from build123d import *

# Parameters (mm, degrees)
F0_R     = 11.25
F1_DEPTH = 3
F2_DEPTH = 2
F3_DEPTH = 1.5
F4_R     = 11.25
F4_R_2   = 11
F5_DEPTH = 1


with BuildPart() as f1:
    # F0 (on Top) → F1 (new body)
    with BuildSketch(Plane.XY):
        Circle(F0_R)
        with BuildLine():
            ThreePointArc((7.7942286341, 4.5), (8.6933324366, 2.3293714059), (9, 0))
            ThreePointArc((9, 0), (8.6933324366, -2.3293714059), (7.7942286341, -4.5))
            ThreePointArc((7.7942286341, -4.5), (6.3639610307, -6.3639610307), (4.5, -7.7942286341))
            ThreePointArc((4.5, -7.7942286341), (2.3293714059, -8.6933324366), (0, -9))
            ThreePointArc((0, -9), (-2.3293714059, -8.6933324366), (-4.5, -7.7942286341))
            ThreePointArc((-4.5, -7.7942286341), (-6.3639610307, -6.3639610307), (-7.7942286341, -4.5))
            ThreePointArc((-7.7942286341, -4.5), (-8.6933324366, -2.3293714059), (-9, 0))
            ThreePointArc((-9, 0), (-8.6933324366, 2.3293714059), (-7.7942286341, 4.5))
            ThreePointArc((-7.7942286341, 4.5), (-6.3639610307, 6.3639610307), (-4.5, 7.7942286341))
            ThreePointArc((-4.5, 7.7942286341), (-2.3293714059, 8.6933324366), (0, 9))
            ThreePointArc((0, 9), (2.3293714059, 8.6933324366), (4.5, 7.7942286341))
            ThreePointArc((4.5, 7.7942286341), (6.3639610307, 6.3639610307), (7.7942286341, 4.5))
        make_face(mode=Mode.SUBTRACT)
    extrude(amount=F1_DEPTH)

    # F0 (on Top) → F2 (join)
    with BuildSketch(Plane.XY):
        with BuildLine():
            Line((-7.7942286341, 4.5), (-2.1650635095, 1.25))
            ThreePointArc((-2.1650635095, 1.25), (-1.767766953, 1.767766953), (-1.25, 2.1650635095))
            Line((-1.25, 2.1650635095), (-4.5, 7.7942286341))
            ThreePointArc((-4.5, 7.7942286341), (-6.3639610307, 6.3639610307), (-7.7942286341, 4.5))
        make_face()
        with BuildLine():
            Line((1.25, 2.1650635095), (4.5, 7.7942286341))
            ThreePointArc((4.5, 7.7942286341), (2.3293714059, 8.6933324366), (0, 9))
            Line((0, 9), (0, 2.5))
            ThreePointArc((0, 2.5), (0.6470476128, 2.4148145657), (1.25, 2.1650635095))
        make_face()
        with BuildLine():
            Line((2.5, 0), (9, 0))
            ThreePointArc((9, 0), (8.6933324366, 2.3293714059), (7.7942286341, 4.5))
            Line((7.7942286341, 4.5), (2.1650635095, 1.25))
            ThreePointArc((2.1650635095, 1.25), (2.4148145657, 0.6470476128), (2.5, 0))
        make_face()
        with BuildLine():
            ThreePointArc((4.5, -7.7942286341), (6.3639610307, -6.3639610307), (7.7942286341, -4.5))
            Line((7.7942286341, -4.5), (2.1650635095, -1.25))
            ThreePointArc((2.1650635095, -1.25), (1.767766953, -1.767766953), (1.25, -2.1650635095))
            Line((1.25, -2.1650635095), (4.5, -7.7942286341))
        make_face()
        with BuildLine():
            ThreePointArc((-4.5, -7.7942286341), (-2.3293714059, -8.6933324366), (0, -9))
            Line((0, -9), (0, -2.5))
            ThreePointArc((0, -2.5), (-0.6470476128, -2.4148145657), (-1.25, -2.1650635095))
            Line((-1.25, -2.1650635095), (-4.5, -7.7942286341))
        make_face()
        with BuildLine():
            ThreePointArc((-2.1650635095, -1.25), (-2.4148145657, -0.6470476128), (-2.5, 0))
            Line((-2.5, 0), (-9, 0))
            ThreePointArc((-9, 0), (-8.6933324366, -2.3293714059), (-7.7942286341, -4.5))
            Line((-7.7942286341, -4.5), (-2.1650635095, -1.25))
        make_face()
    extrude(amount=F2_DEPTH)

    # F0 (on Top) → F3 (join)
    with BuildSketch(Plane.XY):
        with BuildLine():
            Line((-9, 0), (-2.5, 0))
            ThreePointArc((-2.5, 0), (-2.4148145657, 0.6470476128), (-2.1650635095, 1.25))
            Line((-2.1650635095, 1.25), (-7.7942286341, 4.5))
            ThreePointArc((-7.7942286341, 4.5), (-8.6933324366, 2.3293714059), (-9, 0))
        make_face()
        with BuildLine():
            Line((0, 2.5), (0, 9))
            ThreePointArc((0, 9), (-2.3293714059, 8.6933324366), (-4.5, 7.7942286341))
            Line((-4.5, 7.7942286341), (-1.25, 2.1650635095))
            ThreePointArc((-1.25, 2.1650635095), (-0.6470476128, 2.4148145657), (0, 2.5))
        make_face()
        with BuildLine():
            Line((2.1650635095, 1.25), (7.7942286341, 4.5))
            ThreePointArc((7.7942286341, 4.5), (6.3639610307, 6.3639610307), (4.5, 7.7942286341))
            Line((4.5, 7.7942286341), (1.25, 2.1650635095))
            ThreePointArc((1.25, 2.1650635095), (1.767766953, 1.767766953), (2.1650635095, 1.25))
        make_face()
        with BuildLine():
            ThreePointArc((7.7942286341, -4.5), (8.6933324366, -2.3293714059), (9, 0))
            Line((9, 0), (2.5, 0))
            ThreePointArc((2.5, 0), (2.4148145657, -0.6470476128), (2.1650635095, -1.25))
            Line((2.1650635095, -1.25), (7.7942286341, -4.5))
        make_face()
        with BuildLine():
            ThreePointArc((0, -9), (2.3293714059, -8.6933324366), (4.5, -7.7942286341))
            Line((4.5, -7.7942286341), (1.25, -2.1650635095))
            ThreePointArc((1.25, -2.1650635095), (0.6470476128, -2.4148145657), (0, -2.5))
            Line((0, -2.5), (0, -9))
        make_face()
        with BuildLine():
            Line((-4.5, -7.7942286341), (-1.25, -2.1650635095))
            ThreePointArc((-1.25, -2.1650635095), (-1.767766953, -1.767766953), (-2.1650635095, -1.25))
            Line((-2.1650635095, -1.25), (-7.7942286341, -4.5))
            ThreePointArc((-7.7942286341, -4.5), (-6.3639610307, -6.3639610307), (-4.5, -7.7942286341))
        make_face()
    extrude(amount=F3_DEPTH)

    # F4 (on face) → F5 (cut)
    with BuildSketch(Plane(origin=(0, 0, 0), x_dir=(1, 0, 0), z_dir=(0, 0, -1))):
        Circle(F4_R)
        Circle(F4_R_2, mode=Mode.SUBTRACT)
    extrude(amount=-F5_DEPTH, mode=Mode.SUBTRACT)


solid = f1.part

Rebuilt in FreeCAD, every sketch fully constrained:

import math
import FreeCAD as App
import Part
import Sketcher

V = App.Vector
Q = App.Units.Quantity

doc = App.newDocument("Part")
body = doc.addObject("PartDesign::Body", "Body")

# Sketch on XY plane
sketch1 = body.newObject("Sketcher::SketchObject", "Sketch")
sketch1.AttachmentSupport = (doc.getObject("XY_Plane"), [""])
sketch1.MapMode = "FlatFace"
sketch1.addGeometry([
    Part.Circle(V(0, 0, 0), V(0, 0, 1), 11.2),  # 0
    Part.ArcOfCircle(Part.Circle(V(0, 0, 0), V(0, 0, 1), 9), math.radians(30), math.radians(60)),  # 1
    Part.ArcOfCircle(Part.Circle(V(0, 0, 0), V(0, 0, 1), 9), math.radians(0), math.radians(30)),  # 2
    Part.ArcOfCircle(Part.Circle(V(0, 0, 0), V(0, 0, 1), 9), math.radians(-30), math.radians(0)),  # 3
    Part.ArcOfCircle(Part.Circle(V(0, 0, 0), V(0, 0, 1), 9), math.radians(-60), math.radians(-30)),  # 4
    Part.ArcOfCircle(Part.Circle(V(0, 0, 0), V(0, 0, 1), 9), math.radians(-90), math.radians(-60)),  # 5
    Part.ArcOfCircle(Part.Circle(V(0, 0, 0), V(0, 0, 1), 9), math.radians(-120), math.radians(-90)),  # 6
    Part.ArcOfCircle(Part.Circle(V(0, 0, 0), V(0, 0, 1), 9), math.radians(-150), math.radians(-120)),  # 7
    Part.ArcOfCircle(Part.Circle(V(0, 0, 0), V(0, 0, 1), 9), math.radians(180), math.radians(210)),  # 8
    Part.ArcOfCircle(Part.Circle(V(0, 0, 0), V(0, 0, 1), 9), math.radians(150), math.radians(180)),  # 9
    Part.ArcOfCircle(Part.Circle(V(0, 0, 0), V(0, 0, 1), 9), math.radians(120), math.radians(150)),  # 10
    Part.ArcOfCircle(Part.Circle(V(0, 0, 0), V(0, 0, 1), 9), math.radians(90), math.radians(120)),  # 11
    Part.ArcOfCircle(Part.Circle(V(0, 0, 0), V(0, 0, 1), 9), math.radians(60), math.radians(90)),  # 12
], False)
sketch1.addConstraint([
    Sketcher.Constraint("Tangent", 1, 1, 2, 2),
    Sketcher.Constraint("Tangent", 2, 1, 3, 2),
    Sketcher.Constraint("Tangent", 3, 1, 4, 2),
    Sketcher.Constraint("Tangent", 4, 1, 5, 2),
    Sketcher.Constraint("Tangent", 5, 1, 6, 2),
    Sketcher.Constraint("Tangent", 6, 1, 7, 2),
    Sketcher.Constraint("Tangent", 7, 1, 8, 2),
    Sketcher.Constraint("Tangent", 8, 1, 9, 2),
    Sketcher.Constraint("Tangent", 9, 1, 10, 2),
    Sketcher.Constraint("Tangent", 10, 1, 11, 2),
    Sketcher.Constraint("Tangent", 11, 1, 12, 2),
    Sketcher.Constraint("Tangent", 12, 1, 1, 2),
    Sketcher.Constraint("Coincident", 0, 3, -1, 1),
    Sketcher.Constraint("Coincident", 1, 3, -1, 1),
    Sketcher.Constraint("Coincident", 3, 3, -1, 1),
    Sketcher.Constraint("Coincident", 5, 3, -1, 1),
    Sketcher.Constraint("Coincident", 7, 3, -1, 1),
    Sketcher.Constraint("Coincident", 9, 3, -1, 1),
    Sketcher.Constraint("Equal", 9, 10),
    Sketcher.Constraint("PointOnObject", 2, 1, -1),
    Sketcher.Constraint("PointOnObject", 5, 1, -2),
    Sketcher.Constraint("PointOnObject", 8, 1, -1),
    Sketcher.Constraint("PointOnObject", 11, 1, -2),
    Sketcher.Constraint("Horizontal", 4, 1, 6, 1),
    Sketcher.Constraint("Horizontal", 3, 1, 7, 1),
    Sketcher.Constraint("Horizontal", 1, 1, 9, 1),
    Sketcher.Constraint("Horizontal", 10, 1, 12, 1),
    Sketcher.Constraint("Vertical", 1, 1, 3, 1),
    Sketcher.Constraint("Vertical", 6, 1, 10, 1),
    Sketcher.Constraint("Radius", 1, 9.0),
    Sketcher.Constraint("Diameter", 0, 22.5),
    Sketcher.Constraint("DistanceY", -1, 1, 1, 1, 4.5),
    Sketcher.Constraint("DistanceX", -1, 1, 4, 1, 4.5),
])
pad1 = body.newObject("PartDesign::Pad", "Pad")
pad1.Profile = sketch1
pad1.Length = 3

# Sketch on XY plane
sketch2 = body.newObject("Sketcher::SketchObject", "Sketch001")
sketch2.AttachmentSupport = (doc.getObject("XY_Plane"), [""])
sketch2.MapMode = "FlatFace"
sketch2.addGeometry([
    Part.LineSegment(V(-7.8, 4.5, 0), V(-2.2, 1.2, 0)),  # 0
    Part.ArcOfCircle(Part.Circle(V(0, 0, 0), V(0, 0, 1), 2.5), math.radians(120), math.radians(150)),  # 1
    Part.LineSegment(V(-1.2, 2.2, 0), V(-4.5, 7.8, 0)),  # 2
    Part.ArcOfCircle(Part.Circle(V(0, 0, 0), V(0, 0, 1), 9), math.radians(120), math.radians(150)),  # 3
    Part.LineSegment(V(1.2, 2.2, 0), V(4.5, 7.8, 0)),  # 4
    Part.ArcOfCircle(Part.Circle(V(0, 0, 0), V(0, 0, 1), 9), math.radians(60), math.radians(90)),  # 5
    Part.LineSegment(V(0, 9, 0), V(0, 2.5, 0)),  # 6
    Part.ArcOfCircle(Part.Circle(V(0, 0, 0), V(0, 0, 1), 2.5), math.radians(60), math.radians(90)),  # 7
    Part.LineSegment(V(2.5, 0, 0), V(9, 0, 0)),  # 8
    Part.ArcOfCircle(Part.Circle(V(0, 0, 0), V(0, 0, 1), 9), math.radians(0), math.radians(30)),  # 9
    Part.LineSegment(V(7.8, 4.5, 0), V(2.2, 1.2, 0)),  # 10
    Part.ArcOfCircle(Part.Circle(V(0, 0, 0), V(0, 0, 1), 2.5), math.radians(0), math.radians(30)),  # 11
    Part.ArcOfCircle(Part.Circle(V(0, 0, 0), V(0, 0, 1), 9), math.radians(-60), math.radians(-30)),  # 12
    Part.LineSegment(V(7.8, -4.5, 0), V(2.2, -1.2, 0)),  # 13
    Part.ArcOfCircle(Part.Circle(V(0, 0, 0), V(0, 0, 1), 2.5), math.radians(-60), math.radians(-30)),  # 14
    Part.LineSegment(V(1.2, -2.2, 0), V(4.5, -7.8, 0)),  # 15
    Part.ArcOfCircle(Part.Circle(V(0, 0, 0), V(0, 0, 1), 9), math.radians(-120), math.radians(-90)),  # 16
    Part.LineSegment(V(0, -9, 0), V(0, -2.5, 0)),  # 17
    Part.ArcOfCircle(Part.Circle(V(0, 0, 0), V(0, 0, 1), 2.5), math.radians(-120), math.radians(-90)),  # 18
    Part.LineSegment(V(-1.2, -2.2, 0), V(-4.5, -7.8, 0)),  # 19
    Part.ArcOfCircle(Part.Circle(V(0, 0, 0), V(0, 0, 1), 2.5), math.radians(180), math.radians(210)),  # 20
    Part.LineSegment(V(-2.5, 0, 0), V(-9, 0, 0)),  # 21
    Part.ArcOfCircle(Part.Circle(V(0, 0, 0), V(0, 0, 1), 9), math.radians(180), math.radians(210)),  # 22
    Part.LineSegment(V(-7.8, -4.5, 0), V(-2.2, -1.2, 0)),  # 23
], False)
sketch2.addConstraint([
    Sketcher.Constraint("Coincident", 0, 2, 1, 2),
    Sketcher.Constraint("Coincident", 1, 1, 2, 1),
    Sketcher.Constraint("Coincident", 2, 2, 3, 1),
    Sketcher.Constraint("Coincident", 3, 2, 0, 1),
    Sketcher.Constraint("Coincident", 4, 2, 5, 1),
    Sketcher.Constraint("Coincident", 5, 2, 6, 1),
    Sketcher.Constraint("Coincident", 6, 2, 7, 2),
    Sketcher.Constraint("Coincident", 7, 1, 4, 1),
    Sketcher.Constraint("Coincident", 8, 2, 9, 1),
    Sketcher.Constraint("Coincident", 9, 2, 10, 1),
    Sketcher.Constraint("Coincident", 10, 2, 11, 2),
    Sketcher.Constraint("Coincident", 11, 1, 8, 1),
    Sketcher.Constraint("Coincident", 12, 2, 13, 1),
    Sketcher.Constraint("Coincident", 13, 2, 14, 2),
    Sketcher.Constraint("Coincident", 14, 1, 15, 1),
    Sketcher.Constraint("Coincident", 15, 2, 12, 1),
    Sketcher.Constraint("Coincident", 16, 2, 17, 1),
    Sketcher.Constraint("Coincident", 17, 2, 18, 2),
    Sketcher.Constraint("Coincident", 18, 1, 19, 1),
    Sketcher.Constraint("Coincident", 19, 2, 16, 1),
    Sketcher.Constraint("Coincident", 20, 1, 21, 1),
    Sketcher.Constraint("Coincident", 21, 2, 22, 1),
    Sketcher.Constraint("Coincident", 22, 2, 23, 1),
    Sketcher.Constraint("Coincident", 23, 2, 20, 2),
    Sketcher.Constraint("Vertical", 6),
    Sketcher.Constraint("Horizontal", 8),
    Sketcher.Constraint("Vertical", 17),
    Sketcher.Constraint("Horizontal", 21),
    Sketcher.Constraint("Coincident", 1, 3, -1, 1),
    Sketcher.Constraint("Coincident", 3, 3, -1, 1),
    Sketcher.Constraint("Coincident", 5, 3, -1, 1),
    Sketcher.Constraint("Coincident", 7, 3, -1, 1),
    Sketcher.Constraint("Coincident", 9, 3, -1, 1),
    Sketcher.Constraint("Coincident", 11, 3, -1, 1),
    Sketcher.Constraint("Coincident", 12, 3, -1, 1),
    Sketcher.Constraint("Coincident", 14, 3, -1, 1),
    Sketcher.Constraint("Coincident", 16, 3, -1, 1),
    Sketcher.Constraint("Coincident", 18, 3, -1, 1),
    Sketcher.Constraint("Coincident", 20, 3, -1, 1),
    Sketcher.Constraint("Coincident", 22, 3, -1, 1),
    Sketcher.Constraint("Equal", 3, 5),
    Sketcher.Constraint("Equal", 1, 7),
    Sketcher.Constraint("Equal", 5, 9),
    Sketcher.Constraint("Equal", 7, 11),
    Sketcher.Constraint("Equal", 9, 12),
    Sketcher.Constraint("Equal", 11, 14),
    Sketcher.Constraint("Equal", 12, 16),
    Sketcher.Constraint("Equal", 14, 18),
    Sketcher.Constraint("Equal", 18, 20),
    Sketcher.Constraint("Equal", 16, 22),
    Sketcher.Constraint("PointOnObject", 5, 2, -2),
    Sketcher.Constraint("PointOnObject", 8, 2, -1),
    Sketcher.Constraint("PointOnObject", 16, 2, -2),
    Sketcher.Constraint("PointOnObject", 20, 1, -1),
    Sketcher.Constraint("Perpendicular", 0, 4),
    Sketcher.Constraint("Perpendicular", 2, 10),
    Sketcher.Constraint("Perpendicular", 4, 13),
    Sketcher.Constraint("Perpendicular", 10, 15),
    Sketcher.Constraint("Perpendicular", 13, 19),
    Sketcher.Constraint("Perpendicular", 15, 23),
    Sketcher.Constraint("Horizontal", 2, 2, 4, 2),
    Sketcher.Constraint("Horizontal", 1, 1, 7, 1),
    Sketcher.Constraint("Horizontal", 3, 2, 9, 2),
    Sketcher.Constraint("Horizontal", 14, 1, 18, 1),
    Sketcher.Constraint("Horizontal", 12, 2, 22, 2),
    Sketcher.Constraint("Vertical", 9, 2, 12, 2),
    Sketcher.Constraint("Vertical", 7, 1, 14, 1),
    Sketcher.Constraint("Radius", 3, 9.0),
    Sketcher.Constraint("Radius", 1, 2.5),
    Sketcher.Constraint("Angle", 0, Q("-30 deg")),
    Sketcher.Constraint("DistanceY", 6, 2, 9, 2, 2.0),
    Sketcher.Constraint("DistanceX", 11, 1, 15, 2, 2.0),
])
pad2 = body.newObject("PartDesign::Pad", "Pad001")
pad2.Profile = sketch2
pad2.Length = 2

# Sketch on XY plane
sketch3 = body.newObject("Sketcher::SketchObject", "Sketch002")
sketch3.AttachmentSupport = (doc.getObject("XY_Plane"), [""])
sketch3.MapMode = "FlatFace"
sketch3.addGeometry([
    Part.LineSegment(V(-9, 0, 0), V(-2.5, 0, 0)),  # 0
    Part.ArcOfCircle(Part.Circle(V(0, 0, 0), V(0, 0, 1), 2.5), math.radians(150), math.radians(180)),  # 1
    Part.LineSegment(V(-2.2, 1.2, 0), V(-7.8, 4.5, 0)),  # 2
    Part.ArcOfCircle(Part.Circle(V(0, 0, 0), V(0, 0, 1), 9), math.radians(150), math.radians(180)),  # 3
    Part.LineSegment(V(0, 2.5, 0), V(0, 9, 0)),  # 4
    Part.ArcOfCircle(Part.Circle(V(0, 0, 0), V(0, 0, 1), 9), math.radians(90), math.radians(120)),  # 5
    Part.LineSegment(V(-4.5, 7.8, 0), V(-1.2, 2.2, 0)),  # 6
    Part.ArcOfCircle(Part.Circle(V(0, 0, 0), V(0, 0, 1), 2.5), math.radians(90), math.radians(120)),  # 7
    Part.LineSegment(V(2.2, 1.2, 0), V(7.8, 4.5, 0)),  # 8
    Part.ArcOfCircle(Part.Circle(V(0, 0, 0), V(0, 0, 1), 9), math.radians(30), math.radians(60)),  # 9
    Part.LineSegment(V(4.5, 7.8, 0), V(1.2, 2.2, 0)),  # 10
    Part.ArcOfCircle(Part.Circle(V(0, 0, 0), V(0, 0, 1), 2.5), math.radians(30), math.radians(60)),  # 11
    Part.ArcOfCircle(Part.Circle(V(0, 0, 0), V(0, 0, 1), 9), math.radians(-30), math.radians(0)),  # 12
    Part.LineSegment(V(9, 0, 0), V(2.5, 0, 0)),  # 13
    Part.ArcOfCircle(Part.Circle(V(0, 0, 0), V(0, 0, 1), 2.5), math.radians(-30), math.radians(0)),  # 14
    Part.LineSegment(V(2.2, -1.2, 0), V(7.8, -4.5, 0)),  # 15
    Part.ArcOfCircle(Part.Circle(V(0, 0, 0), V(0, 0, 1), 9), math.radians(-90), math.radians(-60)),  # 16
    Part.LineSegment(V(4.5, -7.8, 0), V(1.2, -2.2, 0)),  # 17
    Part.ArcOfCircle(Part.Circle(V(0, 0, 0), V(0, 0, 1), 2.5), math.radians(-90), math.radians(-60)),  # 18
    Part.LineSegment(V(0, -2.5, 0), V(0, -9, 0)),  # 19
    Part.LineSegment(V(-4.5, -7.8, 0), V(-1.2, -2.2, 0)),  # 20
    Part.ArcOfCircle(Part.Circle(V(0, 0, 0), V(0, 0, 1), 2.5), math.radians(-150), math.radians(-120)),  # 21
    Part.LineSegment(V(-2.2, -1.2, 0), V(-7.8, -4.5, 0)),  # 22
    Part.ArcOfCircle(Part.Circle(V(0, 0, 0), V(0, 0, 1), 9), math.radians(-150), math.radians(-120)),  # 23
], False)
sketch3.addConstraint([
    Sketcher.Constraint("Coincident", 0, 2, 1, 2),
    Sketcher.Constraint("Coincident", 1, 1, 2, 1),
    Sketcher.Constraint("Coincident", 2, 2, 3, 1),
    Sketcher.Constraint("Coincident", 3, 2, 0, 1),
    Sketcher.Constraint("Coincident", 4, 2, 5, 1),
    Sketcher.Constraint("Coincident", 5, 2, 6, 1),
    Sketcher.Constraint("Coincident", 6, 2, 7, 2),
    Sketcher.Constraint("Coincident", 7, 1, 4, 1),
    Sketcher.Constraint("Coincident", 8, 2, 9, 1),
    Sketcher.Constraint("Coincident", 9, 2, 10, 1),
    Sketcher.Constraint("Coincident", 10, 2, 11, 2),
    Sketcher.Constraint("Coincident", 11, 1, 8, 1),
    Sketcher.Constraint("Coincident", 12, 2, 13, 1),
    Sketcher.Constraint("Coincident", 13, 2, 14, 2),
    Sketcher.Constraint("Coincident", 14, 1, 15, 1),
    Sketcher.Constraint("Coincident", 15, 2, 12, 1),
    Sketcher.Constraint("Coincident", 16, 2, 17, 1),
    Sketcher.Constraint("Coincident", 17, 2, 18, 2),
    Sketcher.Constraint("Coincident", 18, 1, 19, 1),
    Sketcher.Constraint("Coincident", 19, 2, 16, 1),
    Sketcher.Constraint("Coincident", 20, 2, 21, 2),
    Sketcher.Constraint("Coincident", 21, 1, 22, 1),
    Sketcher.Constraint("Coincident", 22, 2, 23, 1),
    Sketcher.Constraint("Coincident", 23, 2, 20, 1),
    Sketcher.Constraint("Horizontal", 0),
    Sketcher.Constraint("Vertical", 4),
    Sketcher.Constraint("Horizontal", 13),
    Sketcher.Constraint("Vertical", 19),
    Sketcher.Constraint("Coincident", 1, 3, -1, 1),
    Sketcher.Constraint("Coincident", 3, 3, -1, 1),
    Sketcher.Constraint("Coincident", 5, 3, -1, 1),
    Sketcher.Constraint("Coincident", 7, 3, -1, 1),
    Sketcher.Constraint("Coincident", 9, 3, -1, 1),
    Sketcher.Constraint("Coincident", 11, 3, -1, 1),
    Sketcher.Constraint("Coincident", 12, 3, -1, 1),
    Sketcher.Constraint("Coincident", 14, 3, -1, 1),
    Sketcher.Constraint("Coincident", 16, 3, -1, 1),
    Sketcher.Constraint("Coincident", 18, 3, -1, 1),
    Sketcher.Constraint("Coincident", 21, 3, -1, 1),
    Sketcher.Constraint("Coincident", 23, 3, -1, 1),
    Sketcher.Constraint("Equal", 3, 5),
    Sketcher.Constraint("Equal", 1, 7),
    Sketcher.Constraint("Equal", 5, 9),
    Sketcher.Constraint("Equal", 7, 11),
    Sketcher.Constraint("Equal", 9, 12),
    Sketcher.Constraint("Equal", 11, 14),
    Sketcher.Constraint("Equal", 12, 16),
    Sketcher.Constraint("Equal", 14, 18),
    Sketcher.Constraint("Equal", 18, 21),
    Sketcher.Constraint("Equal", 16, 23),
    Sketcher.Constraint("PointOnObject", 0, 2, -1),
    Sketcher.Constraint("PointOnObject", 4, 2, -2),
    Sketcher.Constraint("PointOnObject", 12, 2, -1),
    Sketcher.Constraint("PointOnObject", 18, 1, -2),
    Sketcher.Constraint("Perpendicular", 6, 8),
    Sketcher.Constraint("Perpendicular", 2, 10),
    Sketcher.Constraint("Perpendicular", 10, 15),
    Sketcher.Constraint("Perpendicular", 8, 17),
    Sketcher.Constraint("Perpendicular", 15, 20),
    Sketcher.Constraint("Perpendicular", 17, 22),
    Sketcher.Constraint("Horizontal", 2, 2, 8, 2),
    Sketcher.Constraint("Horizontal", 5, 2, 9, 2),
    Sketcher.Constraint("Horizontal", 6, 2, 10, 2),
    Sketcher.Constraint("Horizontal", 17, 2, 20, 2),
    Sketcher.Constraint("Horizontal", 14, 1, 21, 1),
    Sketcher.Constraint("Vertical", 11, 1, 14, 1),
    Sketcher.Constraint("Vertical", 9, 2, 16, 2),
    Sketcher.Constraint("Radius", 3, 9.0),
    Sketcher.Constraint("Radius", 1, 2.5),
    Sketcher.Constraint("Angle", 2, Q("150 deg")),
    Sketcher.Constraint("DistanceX", 5, 2, 0, 2, 2.0),
    Sketcher.Constraint("DistanceY", 7, 1, 8, 2, 2.0),
])
pad3 = body.newObject("PartDesign::Pad", "Pad002")
pad3.Profile = sketch3
pad3.Length = 1.5

# Sketch on XY plane
sketch4 = body.newObject("Sketcher::SketchObject", "Sketch003")
sketch4.AttachmentSupport = (doc.getObject("XY_Plane"), [""])
sketch4.MapMode = "FlatFace"
sketch4.addGeometry([
    Part.Circle(V(0, 0, 0), V(0, 0, 1), 11),
    Part.Circle(V(0, 0, 0), V(0, 0, 1), 11),
], False)
sketch4.addConstraint([
    Sketcher.Constraint("Coincident", 0, 3, -1, 1),
    Sketcher.Constraint("Coincident", 1, 3, -1, 1),
    Sketcher.Constraint("Diameter", 1, 22.0),
    Sketcher.Constraint("Diameter", 0, 22.5),
])
pocket1 = body.newObject("PartDesign::Pocket", "Pocket")
pocket1.Profile = sketch4
pocket1.Length = 1
pocket1.Reversed = True

doc.recompute()
